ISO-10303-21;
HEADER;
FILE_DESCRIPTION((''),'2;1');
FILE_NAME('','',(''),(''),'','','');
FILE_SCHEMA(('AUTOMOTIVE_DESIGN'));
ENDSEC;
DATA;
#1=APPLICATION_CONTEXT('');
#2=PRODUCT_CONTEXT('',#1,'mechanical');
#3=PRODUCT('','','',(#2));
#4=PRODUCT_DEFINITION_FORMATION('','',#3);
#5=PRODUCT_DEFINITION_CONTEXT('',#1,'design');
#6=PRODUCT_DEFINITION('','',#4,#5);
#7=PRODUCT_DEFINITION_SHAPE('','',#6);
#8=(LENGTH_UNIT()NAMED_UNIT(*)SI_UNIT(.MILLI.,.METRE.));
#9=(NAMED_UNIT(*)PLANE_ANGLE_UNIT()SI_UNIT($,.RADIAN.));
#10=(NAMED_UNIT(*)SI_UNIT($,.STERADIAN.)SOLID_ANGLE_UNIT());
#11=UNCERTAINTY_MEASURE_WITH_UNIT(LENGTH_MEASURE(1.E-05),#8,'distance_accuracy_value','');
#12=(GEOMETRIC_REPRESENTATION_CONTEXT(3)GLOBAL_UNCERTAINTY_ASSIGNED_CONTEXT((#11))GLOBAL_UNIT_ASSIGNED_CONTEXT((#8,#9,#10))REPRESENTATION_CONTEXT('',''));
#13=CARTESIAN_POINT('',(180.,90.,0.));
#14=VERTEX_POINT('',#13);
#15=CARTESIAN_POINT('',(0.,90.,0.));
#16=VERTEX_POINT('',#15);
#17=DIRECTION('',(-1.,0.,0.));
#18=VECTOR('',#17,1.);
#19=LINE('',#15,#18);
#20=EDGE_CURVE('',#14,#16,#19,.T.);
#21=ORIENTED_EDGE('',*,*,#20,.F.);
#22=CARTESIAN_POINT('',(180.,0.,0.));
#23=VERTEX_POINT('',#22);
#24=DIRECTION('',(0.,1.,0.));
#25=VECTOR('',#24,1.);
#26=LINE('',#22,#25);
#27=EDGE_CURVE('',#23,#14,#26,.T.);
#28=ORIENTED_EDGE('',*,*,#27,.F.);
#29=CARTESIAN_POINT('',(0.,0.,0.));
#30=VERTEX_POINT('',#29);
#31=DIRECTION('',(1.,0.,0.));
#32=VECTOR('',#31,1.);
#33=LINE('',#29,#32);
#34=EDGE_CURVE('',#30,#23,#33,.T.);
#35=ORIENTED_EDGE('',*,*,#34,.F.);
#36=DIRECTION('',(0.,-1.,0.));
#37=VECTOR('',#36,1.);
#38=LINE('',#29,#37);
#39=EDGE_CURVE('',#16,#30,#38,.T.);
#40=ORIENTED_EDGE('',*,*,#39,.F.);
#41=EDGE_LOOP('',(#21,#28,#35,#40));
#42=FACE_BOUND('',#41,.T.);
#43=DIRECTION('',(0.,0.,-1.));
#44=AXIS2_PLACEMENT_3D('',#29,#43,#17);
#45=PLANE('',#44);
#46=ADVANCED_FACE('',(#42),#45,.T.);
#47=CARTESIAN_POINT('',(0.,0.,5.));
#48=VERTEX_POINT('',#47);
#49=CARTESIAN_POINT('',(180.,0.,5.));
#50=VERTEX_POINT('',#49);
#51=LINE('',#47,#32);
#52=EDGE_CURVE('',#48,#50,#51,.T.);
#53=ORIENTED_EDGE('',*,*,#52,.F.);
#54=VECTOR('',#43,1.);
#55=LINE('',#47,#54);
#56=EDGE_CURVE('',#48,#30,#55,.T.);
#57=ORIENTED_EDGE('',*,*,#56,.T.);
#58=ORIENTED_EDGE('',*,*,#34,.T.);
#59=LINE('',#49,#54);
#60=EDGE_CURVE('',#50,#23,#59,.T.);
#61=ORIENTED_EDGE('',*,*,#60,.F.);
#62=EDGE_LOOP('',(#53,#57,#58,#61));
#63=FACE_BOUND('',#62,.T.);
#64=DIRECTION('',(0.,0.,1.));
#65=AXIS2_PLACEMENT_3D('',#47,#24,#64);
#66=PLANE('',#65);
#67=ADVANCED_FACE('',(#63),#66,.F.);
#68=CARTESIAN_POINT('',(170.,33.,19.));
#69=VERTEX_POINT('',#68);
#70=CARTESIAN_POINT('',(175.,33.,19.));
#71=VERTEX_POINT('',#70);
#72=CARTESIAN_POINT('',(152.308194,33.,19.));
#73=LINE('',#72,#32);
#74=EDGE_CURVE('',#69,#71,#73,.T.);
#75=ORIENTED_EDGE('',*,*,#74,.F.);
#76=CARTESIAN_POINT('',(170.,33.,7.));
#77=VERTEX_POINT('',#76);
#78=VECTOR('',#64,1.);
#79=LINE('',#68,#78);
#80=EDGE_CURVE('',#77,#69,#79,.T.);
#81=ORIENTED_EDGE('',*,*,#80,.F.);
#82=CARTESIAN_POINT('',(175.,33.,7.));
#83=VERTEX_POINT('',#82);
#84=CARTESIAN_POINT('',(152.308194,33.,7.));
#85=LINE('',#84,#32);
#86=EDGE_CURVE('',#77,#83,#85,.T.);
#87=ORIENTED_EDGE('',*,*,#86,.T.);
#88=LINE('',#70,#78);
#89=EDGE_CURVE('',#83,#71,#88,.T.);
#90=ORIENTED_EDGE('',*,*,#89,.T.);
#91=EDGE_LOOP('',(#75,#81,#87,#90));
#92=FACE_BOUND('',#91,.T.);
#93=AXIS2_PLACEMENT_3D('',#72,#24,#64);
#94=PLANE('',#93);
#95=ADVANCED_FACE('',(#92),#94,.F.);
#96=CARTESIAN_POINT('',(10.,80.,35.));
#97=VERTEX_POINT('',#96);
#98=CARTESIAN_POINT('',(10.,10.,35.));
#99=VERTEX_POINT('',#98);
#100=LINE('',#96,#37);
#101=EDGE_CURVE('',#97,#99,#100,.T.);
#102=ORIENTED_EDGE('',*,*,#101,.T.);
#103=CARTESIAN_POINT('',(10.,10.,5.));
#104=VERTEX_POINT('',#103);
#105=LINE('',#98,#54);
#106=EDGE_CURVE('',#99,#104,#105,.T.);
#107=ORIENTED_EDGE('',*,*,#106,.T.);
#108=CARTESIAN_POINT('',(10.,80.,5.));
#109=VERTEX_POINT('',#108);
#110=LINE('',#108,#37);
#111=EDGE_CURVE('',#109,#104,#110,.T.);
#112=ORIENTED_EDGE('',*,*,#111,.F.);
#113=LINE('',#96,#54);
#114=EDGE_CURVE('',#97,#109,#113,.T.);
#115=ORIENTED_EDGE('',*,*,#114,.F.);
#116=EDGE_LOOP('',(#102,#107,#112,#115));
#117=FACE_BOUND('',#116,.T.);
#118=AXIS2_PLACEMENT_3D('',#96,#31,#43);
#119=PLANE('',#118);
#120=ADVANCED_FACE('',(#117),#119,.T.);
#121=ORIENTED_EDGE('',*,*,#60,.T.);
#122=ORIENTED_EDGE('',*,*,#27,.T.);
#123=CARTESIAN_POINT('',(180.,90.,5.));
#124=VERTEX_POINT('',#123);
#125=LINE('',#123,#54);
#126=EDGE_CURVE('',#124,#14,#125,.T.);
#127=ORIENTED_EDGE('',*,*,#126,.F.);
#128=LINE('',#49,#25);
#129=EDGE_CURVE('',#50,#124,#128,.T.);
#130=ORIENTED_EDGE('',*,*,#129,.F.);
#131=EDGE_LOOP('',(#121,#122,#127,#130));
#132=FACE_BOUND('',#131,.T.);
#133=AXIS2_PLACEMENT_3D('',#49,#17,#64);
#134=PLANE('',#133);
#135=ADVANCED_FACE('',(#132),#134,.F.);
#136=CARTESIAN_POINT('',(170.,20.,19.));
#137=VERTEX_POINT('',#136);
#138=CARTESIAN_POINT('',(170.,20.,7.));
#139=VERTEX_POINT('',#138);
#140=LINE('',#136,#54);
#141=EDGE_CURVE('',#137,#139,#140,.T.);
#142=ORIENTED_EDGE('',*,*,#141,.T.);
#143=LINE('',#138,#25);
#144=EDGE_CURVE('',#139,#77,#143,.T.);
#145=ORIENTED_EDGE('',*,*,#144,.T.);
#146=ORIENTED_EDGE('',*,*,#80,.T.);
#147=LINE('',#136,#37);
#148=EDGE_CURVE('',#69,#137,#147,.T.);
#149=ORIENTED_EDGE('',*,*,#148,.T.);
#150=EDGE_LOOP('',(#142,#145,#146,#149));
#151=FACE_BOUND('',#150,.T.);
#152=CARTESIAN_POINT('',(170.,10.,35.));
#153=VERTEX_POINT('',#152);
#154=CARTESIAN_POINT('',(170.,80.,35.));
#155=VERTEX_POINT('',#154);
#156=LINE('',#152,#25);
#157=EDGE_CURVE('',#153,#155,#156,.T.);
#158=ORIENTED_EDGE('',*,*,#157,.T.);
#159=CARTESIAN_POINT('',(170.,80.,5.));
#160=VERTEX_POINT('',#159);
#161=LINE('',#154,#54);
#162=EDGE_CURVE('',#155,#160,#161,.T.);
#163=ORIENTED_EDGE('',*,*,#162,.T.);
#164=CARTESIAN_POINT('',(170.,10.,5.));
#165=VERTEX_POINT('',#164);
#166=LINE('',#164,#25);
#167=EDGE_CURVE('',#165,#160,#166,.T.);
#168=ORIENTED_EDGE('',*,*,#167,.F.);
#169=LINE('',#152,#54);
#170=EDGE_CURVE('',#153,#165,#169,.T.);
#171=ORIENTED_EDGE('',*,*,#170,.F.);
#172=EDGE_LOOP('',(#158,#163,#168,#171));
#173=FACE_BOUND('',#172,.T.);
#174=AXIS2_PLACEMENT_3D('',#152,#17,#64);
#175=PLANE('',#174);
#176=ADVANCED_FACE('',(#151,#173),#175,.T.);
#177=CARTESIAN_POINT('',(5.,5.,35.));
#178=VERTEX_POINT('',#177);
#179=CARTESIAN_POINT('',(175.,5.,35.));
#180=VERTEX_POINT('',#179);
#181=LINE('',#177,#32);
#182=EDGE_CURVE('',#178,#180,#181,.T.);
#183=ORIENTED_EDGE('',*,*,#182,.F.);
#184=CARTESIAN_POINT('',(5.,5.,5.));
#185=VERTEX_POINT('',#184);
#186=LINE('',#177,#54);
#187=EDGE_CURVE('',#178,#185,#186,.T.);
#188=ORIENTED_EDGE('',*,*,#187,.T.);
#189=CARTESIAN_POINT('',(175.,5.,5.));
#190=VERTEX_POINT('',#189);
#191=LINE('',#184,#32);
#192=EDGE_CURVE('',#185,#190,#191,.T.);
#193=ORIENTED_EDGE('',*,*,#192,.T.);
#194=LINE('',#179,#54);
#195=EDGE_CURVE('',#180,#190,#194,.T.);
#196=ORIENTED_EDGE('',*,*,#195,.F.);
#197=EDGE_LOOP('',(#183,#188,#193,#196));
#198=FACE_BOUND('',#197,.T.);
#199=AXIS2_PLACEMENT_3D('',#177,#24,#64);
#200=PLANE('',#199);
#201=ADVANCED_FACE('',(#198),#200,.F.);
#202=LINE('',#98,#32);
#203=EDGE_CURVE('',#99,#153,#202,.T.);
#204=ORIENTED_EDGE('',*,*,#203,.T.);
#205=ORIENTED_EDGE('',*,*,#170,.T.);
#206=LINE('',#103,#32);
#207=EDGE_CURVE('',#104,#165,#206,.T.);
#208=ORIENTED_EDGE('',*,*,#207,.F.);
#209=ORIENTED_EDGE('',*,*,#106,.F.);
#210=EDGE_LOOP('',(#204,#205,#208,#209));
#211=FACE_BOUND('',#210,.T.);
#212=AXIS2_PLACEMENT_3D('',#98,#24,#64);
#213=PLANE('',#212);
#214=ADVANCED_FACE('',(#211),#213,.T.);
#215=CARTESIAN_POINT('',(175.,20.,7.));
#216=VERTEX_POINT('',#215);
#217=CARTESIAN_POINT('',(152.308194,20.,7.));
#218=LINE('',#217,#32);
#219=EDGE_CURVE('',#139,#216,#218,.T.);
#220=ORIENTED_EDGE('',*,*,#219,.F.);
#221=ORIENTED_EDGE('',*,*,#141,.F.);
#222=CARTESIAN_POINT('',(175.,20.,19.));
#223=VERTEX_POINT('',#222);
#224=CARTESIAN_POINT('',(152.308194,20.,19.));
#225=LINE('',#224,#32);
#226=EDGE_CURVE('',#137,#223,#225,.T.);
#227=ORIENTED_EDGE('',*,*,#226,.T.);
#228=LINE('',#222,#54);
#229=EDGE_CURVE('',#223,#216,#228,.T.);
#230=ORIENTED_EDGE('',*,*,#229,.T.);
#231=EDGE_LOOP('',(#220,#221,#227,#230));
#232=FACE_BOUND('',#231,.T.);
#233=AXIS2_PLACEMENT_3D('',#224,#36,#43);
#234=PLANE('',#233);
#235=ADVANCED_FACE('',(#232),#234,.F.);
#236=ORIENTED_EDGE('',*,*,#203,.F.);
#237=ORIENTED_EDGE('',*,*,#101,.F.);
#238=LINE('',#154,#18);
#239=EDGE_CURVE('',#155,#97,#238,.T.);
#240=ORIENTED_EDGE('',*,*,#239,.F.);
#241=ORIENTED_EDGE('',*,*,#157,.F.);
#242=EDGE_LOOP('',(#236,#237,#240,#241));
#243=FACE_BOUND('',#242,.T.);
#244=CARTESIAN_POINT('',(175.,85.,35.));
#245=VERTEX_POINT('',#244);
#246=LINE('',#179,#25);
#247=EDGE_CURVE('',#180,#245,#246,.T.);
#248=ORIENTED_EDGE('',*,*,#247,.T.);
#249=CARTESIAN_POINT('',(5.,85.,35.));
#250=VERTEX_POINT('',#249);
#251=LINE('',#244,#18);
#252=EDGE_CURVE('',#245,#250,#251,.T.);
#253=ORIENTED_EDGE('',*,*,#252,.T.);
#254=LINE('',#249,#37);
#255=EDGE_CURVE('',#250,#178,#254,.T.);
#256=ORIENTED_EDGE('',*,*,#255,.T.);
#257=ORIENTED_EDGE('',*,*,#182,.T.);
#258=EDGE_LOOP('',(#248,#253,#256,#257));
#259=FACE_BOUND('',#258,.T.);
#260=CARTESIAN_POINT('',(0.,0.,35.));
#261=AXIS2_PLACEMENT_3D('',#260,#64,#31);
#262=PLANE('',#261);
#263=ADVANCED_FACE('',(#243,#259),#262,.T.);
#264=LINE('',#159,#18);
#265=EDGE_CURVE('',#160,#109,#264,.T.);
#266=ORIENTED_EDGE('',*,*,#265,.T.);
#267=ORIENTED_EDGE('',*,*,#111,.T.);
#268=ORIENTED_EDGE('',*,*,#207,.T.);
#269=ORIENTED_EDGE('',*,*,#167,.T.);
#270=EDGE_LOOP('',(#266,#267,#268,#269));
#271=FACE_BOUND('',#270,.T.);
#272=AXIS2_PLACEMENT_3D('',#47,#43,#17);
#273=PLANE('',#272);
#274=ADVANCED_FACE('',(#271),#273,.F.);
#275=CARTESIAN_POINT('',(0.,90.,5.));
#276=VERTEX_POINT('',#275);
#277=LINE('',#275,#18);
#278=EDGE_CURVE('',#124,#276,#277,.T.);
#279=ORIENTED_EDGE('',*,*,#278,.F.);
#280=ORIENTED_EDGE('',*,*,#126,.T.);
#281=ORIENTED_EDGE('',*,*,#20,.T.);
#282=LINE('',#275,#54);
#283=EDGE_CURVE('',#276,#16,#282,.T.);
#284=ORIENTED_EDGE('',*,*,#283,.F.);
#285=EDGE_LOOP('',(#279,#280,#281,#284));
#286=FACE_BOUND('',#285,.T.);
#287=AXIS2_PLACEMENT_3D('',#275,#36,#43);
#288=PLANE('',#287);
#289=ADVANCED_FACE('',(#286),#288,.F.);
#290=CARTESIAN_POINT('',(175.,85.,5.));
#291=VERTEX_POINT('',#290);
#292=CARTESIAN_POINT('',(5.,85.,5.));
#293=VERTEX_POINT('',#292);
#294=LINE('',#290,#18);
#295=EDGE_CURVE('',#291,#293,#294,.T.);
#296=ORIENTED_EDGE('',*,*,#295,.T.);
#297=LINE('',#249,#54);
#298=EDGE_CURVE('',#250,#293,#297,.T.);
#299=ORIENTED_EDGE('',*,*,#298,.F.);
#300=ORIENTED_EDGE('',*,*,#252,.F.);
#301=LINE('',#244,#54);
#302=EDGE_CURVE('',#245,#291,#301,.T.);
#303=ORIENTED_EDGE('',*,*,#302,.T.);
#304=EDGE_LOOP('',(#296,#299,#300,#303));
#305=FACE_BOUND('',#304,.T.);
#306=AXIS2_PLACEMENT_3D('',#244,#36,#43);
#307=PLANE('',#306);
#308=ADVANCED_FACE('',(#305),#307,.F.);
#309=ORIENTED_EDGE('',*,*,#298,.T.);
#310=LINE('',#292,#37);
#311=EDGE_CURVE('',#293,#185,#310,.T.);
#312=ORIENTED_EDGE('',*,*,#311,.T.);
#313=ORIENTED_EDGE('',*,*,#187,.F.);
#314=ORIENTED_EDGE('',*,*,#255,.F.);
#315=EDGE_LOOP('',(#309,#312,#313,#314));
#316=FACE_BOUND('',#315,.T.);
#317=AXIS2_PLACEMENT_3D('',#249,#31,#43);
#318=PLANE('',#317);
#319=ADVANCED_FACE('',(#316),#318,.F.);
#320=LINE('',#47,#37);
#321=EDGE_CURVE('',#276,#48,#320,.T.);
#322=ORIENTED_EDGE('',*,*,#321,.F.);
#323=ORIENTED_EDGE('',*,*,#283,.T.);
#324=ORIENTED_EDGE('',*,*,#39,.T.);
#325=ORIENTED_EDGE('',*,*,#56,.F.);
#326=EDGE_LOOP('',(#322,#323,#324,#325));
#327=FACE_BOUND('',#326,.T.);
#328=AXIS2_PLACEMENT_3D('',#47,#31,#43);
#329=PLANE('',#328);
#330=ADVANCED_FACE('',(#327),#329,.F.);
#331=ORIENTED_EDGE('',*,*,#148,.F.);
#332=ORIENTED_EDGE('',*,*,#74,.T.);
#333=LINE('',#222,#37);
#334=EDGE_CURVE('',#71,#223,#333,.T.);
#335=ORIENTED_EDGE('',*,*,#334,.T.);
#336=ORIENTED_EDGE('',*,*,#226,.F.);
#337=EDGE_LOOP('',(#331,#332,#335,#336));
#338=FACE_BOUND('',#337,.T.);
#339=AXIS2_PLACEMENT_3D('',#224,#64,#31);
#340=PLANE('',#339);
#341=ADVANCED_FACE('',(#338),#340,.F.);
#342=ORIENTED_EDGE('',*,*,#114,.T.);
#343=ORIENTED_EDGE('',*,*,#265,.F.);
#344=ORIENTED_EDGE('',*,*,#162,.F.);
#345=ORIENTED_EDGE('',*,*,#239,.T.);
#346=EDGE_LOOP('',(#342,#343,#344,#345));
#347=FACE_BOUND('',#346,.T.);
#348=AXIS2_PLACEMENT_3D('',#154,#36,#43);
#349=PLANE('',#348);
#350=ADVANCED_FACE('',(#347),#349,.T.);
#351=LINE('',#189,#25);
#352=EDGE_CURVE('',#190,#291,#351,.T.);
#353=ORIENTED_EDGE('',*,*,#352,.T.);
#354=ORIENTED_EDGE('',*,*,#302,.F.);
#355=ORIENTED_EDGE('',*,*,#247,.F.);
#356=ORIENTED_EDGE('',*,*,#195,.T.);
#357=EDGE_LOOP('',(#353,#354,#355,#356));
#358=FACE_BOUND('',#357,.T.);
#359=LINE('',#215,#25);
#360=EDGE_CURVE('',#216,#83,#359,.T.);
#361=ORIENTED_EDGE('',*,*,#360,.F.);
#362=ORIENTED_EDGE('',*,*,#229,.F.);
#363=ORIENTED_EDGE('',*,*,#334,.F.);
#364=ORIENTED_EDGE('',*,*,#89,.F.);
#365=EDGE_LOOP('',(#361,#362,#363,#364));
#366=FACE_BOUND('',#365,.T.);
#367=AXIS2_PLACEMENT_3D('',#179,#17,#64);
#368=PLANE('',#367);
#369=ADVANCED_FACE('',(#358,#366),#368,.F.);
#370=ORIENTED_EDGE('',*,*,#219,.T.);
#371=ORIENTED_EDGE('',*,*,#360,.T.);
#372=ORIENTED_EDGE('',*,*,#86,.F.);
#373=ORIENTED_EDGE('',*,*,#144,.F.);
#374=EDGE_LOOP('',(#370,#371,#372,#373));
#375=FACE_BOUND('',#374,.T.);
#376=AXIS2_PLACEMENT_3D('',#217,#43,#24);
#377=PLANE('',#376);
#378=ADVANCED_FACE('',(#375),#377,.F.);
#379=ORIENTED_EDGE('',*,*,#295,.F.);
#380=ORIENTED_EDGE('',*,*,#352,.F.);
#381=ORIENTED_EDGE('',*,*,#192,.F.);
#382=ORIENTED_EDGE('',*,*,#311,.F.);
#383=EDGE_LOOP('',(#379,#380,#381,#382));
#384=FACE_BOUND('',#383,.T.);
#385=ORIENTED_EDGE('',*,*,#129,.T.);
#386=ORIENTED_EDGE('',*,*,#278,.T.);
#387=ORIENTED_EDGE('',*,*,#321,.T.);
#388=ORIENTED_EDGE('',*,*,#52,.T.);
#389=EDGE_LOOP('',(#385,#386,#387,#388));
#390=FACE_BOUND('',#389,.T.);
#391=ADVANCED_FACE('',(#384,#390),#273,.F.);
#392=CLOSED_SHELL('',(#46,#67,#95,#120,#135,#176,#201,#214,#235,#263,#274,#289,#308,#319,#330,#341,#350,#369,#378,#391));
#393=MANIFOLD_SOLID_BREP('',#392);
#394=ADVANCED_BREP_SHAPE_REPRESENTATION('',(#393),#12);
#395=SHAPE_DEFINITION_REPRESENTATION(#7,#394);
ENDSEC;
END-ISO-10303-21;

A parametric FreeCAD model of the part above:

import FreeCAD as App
import Part
import Sketcher
Q = App.Units.Quantity

doc = App.newDocument("Part")
body = doc.addObject("PartDesign::Body", "Body")

sketch1 = body.newObject("Sketcher::SketchObject", "Sketch")
sketch1.AttachmentSupport = (doc.getObject("XY_Plane"), [""])
sketch1.MapMode = "FlatFace"
sketch1.addGeometry(Part.LineSegment(App.Vector(0, 90, 0), App.Vector(0, 0, 0)), False)
sketch1.addGeometry(Part.LineSegment(App.Vector(0, 0, 0), App.Vector(180, 0, 0)), False)
sketch1.addGeometry(Part.LineSegment(App.Vector(180, 0, 0), App.Vector(180, 90, 0)), False)
sketch1.addGeometry(Part.LineSegment(App.Vector(180, 90, 0), App.Vector(0, 90, 0)), False)
sketch1.addConstraint(Sketcher.Constraint("Coincident", 0, 2, 1, 1))
sketch1.addConstraint(Sketcher.Constraint("Coincident", 1, 2, 2, 1))
sketch1.addConstraint(Sketcher.Constraint("Coincident", 2, 2, 3, 1))
sketch1.addConstraint(Sketcher.Constraint("Coincident", 3, 2, 0, 1))
sketch1.addConstraint(Sketcher.Constraint("Vertical", 0))
sketch1.addConstraint(Sketcher.Constraint("Horizontal", 1))
sketch1.addConstraint(Sketcher.Constraint("Vertical", 2))
sketch1.addConstraint(Sketcher.Constraint("Horizontal", 3))
sketch1.addConstraint(Sketcher.Constraint("Coincident", 0, 2, -1, 1))
sketch1.addConstraint(Sketcher.Constraint("DistanceX", 1, 1, 1, 2, Q("180 mm")))
sketch1.addConstraint(Sketcher.Constraint("DistanceY", 0, 2, 0, 1, Q("90 mm")))
pad1 = body.newObject("PartDesign::Pad", "Pad")
pad1.Profile = sketch1
pad1.Length = 5

sketch2 = body.newObject("Sketcher::SketchObject", "Sketch001")
sketch2.AttachmentSupport = (doc.getObject("XY_Plane"), [""])
sketch2.MapMode = "FlatFace"
sketch2.AttachmentOffset = App.Placement(App.Vector(0, 0, 5), App.Rotation())
sketch2.addGeometry(Part.LineSegment(App.Vector(5, 85, 0), App.Vector(5, 5, 0)), False)
sketch2.addGeometry(Part.LineSegment(App.Vector(5, 5, 0), App.Vector(175, 5, 0)), False)
sketch2.addGeometry(Part.LineSegment(App.Vector(175, 5, 0), App.Vector(175, 85, 0)), False)
sketch2.addGeometry(Part.LineSegment(App.Vector(175, 85, 0), App.Vector(5, 85, 0)), False)
sketch2.addGeometry(Part.LineSegment(App.Vector(170, 10, 0), App.Vector(10, 10, 0)), False)
sketch2.addGeometry(Part.LineSegment(App.Vector(10, 10, 0), App.Vector(10, 80, 0)), False)
sketch2.addGeometry(Part.LineSegment(App.Vector(10, 80, 0), App.Vector(170, 80, 0)), False)
sketch2.addGeometry(Part.LineSegment(App.Vector(170, 80, 0), App.Vector(170, 10, 0)), False)
sketch2.addConstraint(Sketcher.Constraint("Coincident", 0, 2, 1, 1))
sketch2.addConstraint(Sketcher.Constraint("Coincident", 1, 2, 2, 1))
sketch2.addConstraint(Sketcher.Constraint("Coincident", 2, 2, 3, 1))
sketch2.addConstraint(Sketcher.Constraint("Coincident", 3, 2, 0, 1))
sketch2.addConstraint(Sketcher.Constraint("Coincident", 4, 2, 5, 1))
sketch2.addConstraint(Sketcher.Constraint("Coincident", 5, 2, 6, 1))
sketch2.addConstraint(Sketcher.Constraint("Coincident", 6, 2, 7, 1))
sketch2.addConstraint(Sketcher.Constraint("Coincident", 7, 2, 4, 1))
sketch2.addConstraint(Sketcher.Constraint("Vertical", 0))
sketch2.addConstraint(Sketcher.Constraint("Horizontal", 1))
sketch2.addConstraint(Sketcher.Constraint("Vertical", 2))
sketch2.addConstraint(Sketcher.Constraint("Horizontal", 3))
sketch2.addConstraint(Sketcher.Constraint("Horizontal", 4))
sketch2.addConstraint(Sketcher.Constraint("Vertical", 5))
sketch2.addConstraint(Sketcher.Constraint("Horizontal", 6))
sketch2.addConstraint(Sketcher.Constraint("Vertical", 7))
sketch2.addConstraint(Sketcher.Constraint("DistanceX", 1, 1, 1, 2, Q("170 mm")))
sketch2.addConstraint(Sketcher.Constraint("DistanceX", 4, 2, 4, 1, Q("160 mm")))
sketch2.addConstraint(Sketcher.Constraint("DistanceY", 0, 2, 0, 1, Q("80 mm")))
sketch2.addConstraint(Sketcher.Constraint("DistanceY", 5, 1, 5, 2, Q("70 mm")))
sketch2.addConstraint(Sketcher.Constraint("DistanceX", -1, 1, 0, 2, Q("5 mm")))
sketch2.addConstraint(Sketcher.Constraint("DistanceY", -1, 1, 0, 2, Q("5 mm")))
sketch2.addConstraint(Sketcher.Constraint("DistanceX", -1, 1, 4, 2, Q("10 mm")))
sketch2.addConstraint(Sketcher.Constraint("DistanceY", -1, 1, 4, 2, Q("10 mm")))
pad2 = body.newObject("PartDesign::Pad", "Pad001")
pad2.Profile = sketch2
pad2.Length = 30

sketch3 = body.newObject("Sketcher::SketchObject", "Sketch002")
sketch3.AttachmentSupport = (doc.getObject("YZ_Plane"), [""])
sketch3.MapMode = "FlatFace"
sketch3.AttachmentOffset = App.Placement(App.Vector(0, 0, 175), App.Rotation())
sketch3.addGeometry(Part.LineSegment(App.Vector(33, 19, 0), App.Vector(20, 19, 0)), False)
sketch3.addGeometry(Part.LineSegment(App.Vector(20, 19, 0), App.Vector(20, 7, 0)), False)
sketch3.addGeometry(Part.LineSegment(App.Vector(20, 7, 0), App.Vector(33, 7, 0)), False)
sketch3.addGeometry(Part.LineSegment(App.Vector(33, 7, 0), App.Vector(33, 19, 0)), False)
sketch3.addConstraint(Sketcher.Constraint("Coincident", 0, 2, 1, 1))
sketch3.addConstraint(Sketcher.Constraint("Coincident", 1, 2, 2, 1))
sketch3.addConstraint(Sketcher.Constraint("Coincident", 2, 2, 3, 1))
sketch3.addConstraint(Sketcher.Constraint("Coincident", 3, 2, 0, 1))
sketch3.addConstraint(Sketcher.Constraint("Horizontal", 0))
sketch3.addConstraint(Sketcher.Constraint("Vertical", 1))
sketch3.addConstraint(Sketcher.Constraint("Horizontal", 2))
sketch3.addConstraint(Sketcher.Constraint("Vertical", 3))
sketch3.addConstraint(Sketcher.Constraint("DistanceX", 0, 2, 0, 1, Q("13 mm")))
sketch3.addConstraint(Sketcher.Constraint("DistanceY", 1, 2, 1, 1, Q("12 mm")))
sketch3.addConstraint(Sketcher.Constraint("DistanceX", -1, 1, 0, 2, Q("20 mm")))
sketch3.addConstraint(Sketcher.Constraint("DistanceY", -1, 1, 0, 2, Q("19 mm")))
pocket1 = body.newObject("PartDesign::Pocket", "Pocket")
pocket1.Profile = sketch3
pocket1.Length = 5

doc.recompute()
